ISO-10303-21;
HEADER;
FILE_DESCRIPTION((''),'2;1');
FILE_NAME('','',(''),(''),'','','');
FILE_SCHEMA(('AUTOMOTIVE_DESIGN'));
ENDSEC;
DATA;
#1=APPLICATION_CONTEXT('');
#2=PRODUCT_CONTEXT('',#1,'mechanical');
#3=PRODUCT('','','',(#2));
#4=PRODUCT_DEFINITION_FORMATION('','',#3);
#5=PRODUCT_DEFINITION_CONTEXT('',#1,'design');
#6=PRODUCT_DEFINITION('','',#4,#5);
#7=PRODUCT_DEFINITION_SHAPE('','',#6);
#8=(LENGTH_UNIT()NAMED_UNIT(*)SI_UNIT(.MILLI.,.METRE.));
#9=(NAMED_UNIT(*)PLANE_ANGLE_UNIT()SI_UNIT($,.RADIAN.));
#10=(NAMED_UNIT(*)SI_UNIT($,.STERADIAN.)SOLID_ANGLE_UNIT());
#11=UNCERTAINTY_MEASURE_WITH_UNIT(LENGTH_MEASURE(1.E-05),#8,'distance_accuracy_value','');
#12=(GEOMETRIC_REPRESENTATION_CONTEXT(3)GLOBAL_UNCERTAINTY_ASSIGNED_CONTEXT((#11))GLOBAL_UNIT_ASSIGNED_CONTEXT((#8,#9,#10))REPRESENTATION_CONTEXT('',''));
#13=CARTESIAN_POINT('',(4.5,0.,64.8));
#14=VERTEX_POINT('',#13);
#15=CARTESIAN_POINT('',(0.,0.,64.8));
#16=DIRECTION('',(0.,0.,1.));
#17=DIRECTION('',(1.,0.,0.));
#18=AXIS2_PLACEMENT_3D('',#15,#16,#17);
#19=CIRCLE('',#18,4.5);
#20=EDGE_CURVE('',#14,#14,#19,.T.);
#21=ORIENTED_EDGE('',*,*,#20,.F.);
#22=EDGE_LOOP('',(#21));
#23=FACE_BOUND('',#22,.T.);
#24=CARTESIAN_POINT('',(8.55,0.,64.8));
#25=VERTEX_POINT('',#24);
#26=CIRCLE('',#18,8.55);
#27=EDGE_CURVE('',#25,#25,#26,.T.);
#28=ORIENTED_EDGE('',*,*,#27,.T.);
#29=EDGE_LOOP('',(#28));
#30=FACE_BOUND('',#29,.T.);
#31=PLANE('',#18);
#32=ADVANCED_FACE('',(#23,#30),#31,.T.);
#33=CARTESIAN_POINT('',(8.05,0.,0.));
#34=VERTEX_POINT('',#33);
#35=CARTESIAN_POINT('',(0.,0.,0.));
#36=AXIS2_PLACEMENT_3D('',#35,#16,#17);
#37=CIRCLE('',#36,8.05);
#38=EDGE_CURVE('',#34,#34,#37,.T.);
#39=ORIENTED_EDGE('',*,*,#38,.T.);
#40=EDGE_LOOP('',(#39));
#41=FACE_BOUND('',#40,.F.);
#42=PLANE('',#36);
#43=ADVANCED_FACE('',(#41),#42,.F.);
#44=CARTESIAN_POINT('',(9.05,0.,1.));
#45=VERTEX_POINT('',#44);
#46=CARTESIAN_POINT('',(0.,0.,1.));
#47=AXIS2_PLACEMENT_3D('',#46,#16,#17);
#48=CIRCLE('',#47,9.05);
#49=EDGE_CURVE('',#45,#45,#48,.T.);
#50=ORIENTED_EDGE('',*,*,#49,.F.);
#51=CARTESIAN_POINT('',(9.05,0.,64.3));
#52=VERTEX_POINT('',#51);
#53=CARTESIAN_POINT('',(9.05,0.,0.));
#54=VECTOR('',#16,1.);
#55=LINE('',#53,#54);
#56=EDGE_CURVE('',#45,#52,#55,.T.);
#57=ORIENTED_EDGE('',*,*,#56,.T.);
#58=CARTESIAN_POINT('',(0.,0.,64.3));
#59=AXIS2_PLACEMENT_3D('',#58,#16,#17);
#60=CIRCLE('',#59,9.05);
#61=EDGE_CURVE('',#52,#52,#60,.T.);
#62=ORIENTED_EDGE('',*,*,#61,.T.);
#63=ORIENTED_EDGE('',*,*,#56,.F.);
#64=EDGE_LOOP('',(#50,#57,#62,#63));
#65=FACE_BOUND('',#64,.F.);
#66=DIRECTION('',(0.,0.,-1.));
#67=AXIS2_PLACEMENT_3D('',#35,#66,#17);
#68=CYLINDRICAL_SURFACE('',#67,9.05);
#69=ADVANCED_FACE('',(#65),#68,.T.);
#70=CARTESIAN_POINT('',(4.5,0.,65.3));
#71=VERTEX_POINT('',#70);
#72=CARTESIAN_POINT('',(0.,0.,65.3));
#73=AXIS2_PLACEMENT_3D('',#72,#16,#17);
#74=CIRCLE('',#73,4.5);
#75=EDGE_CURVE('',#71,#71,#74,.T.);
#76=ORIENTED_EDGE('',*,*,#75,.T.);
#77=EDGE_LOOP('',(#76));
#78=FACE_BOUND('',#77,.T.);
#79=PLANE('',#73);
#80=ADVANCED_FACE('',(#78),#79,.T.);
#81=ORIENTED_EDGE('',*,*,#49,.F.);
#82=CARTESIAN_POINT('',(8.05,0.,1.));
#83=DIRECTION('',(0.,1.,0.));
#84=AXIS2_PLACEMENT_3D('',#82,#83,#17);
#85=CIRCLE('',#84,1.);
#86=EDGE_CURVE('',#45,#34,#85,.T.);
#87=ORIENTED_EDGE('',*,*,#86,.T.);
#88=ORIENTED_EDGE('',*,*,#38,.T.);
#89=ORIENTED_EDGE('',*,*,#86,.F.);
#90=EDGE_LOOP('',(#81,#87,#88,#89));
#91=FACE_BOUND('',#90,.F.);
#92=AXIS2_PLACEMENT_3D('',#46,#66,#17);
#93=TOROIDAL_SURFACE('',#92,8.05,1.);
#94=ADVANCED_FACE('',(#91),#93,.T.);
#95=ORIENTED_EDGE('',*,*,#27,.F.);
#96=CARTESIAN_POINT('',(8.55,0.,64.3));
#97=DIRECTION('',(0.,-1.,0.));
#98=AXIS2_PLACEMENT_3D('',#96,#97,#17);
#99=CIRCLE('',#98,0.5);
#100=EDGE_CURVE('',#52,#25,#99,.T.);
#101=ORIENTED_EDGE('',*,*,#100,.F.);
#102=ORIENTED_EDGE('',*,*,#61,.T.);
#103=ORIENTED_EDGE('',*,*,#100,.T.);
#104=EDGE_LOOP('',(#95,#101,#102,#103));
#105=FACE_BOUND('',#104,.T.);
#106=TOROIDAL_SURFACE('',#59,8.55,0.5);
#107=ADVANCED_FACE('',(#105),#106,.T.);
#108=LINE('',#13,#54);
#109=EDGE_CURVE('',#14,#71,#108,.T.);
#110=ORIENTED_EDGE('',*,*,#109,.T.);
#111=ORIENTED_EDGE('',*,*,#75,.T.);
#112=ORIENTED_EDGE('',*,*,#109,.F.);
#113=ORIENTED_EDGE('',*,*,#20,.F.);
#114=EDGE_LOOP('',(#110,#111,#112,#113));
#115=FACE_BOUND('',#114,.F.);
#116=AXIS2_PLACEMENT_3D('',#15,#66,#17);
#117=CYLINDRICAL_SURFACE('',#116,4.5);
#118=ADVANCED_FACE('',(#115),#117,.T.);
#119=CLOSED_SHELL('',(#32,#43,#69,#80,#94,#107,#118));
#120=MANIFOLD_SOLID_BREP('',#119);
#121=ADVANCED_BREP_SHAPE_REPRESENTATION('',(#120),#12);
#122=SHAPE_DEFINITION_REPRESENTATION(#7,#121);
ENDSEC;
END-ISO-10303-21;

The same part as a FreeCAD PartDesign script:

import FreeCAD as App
import Part
import Sketcher


def edges_at(feature, points):
    """Names of the edges that pass closest to the given points."""
    edges = feature.Shape.Edges
    near = lambda p: min(range(len(edges)), key=lambda i: edges[i].distToShape(Part.Vertex(*p))[0])
    return sorted({f"Edge{near(p) + 1}" for p in points})

doc = App.newDocument("Part")
params = doc.addObject("Spreadsheet::Sheet", "Params")
for row, (alias, value) in enumerate([
    ("sketch1_diameter", "18.1 mm"),
    ("pad1_length", "64.8 mm"),
    ("fillet_radius", "1 mm"),
    ("sketch2_diameter", "9 mm"),
    ("pad2_length", "0.5 mm"),
    ("fillet2_radius", "0.5 mm"),
], start=1):
    params.set(f"A{row}", alias)
    params.set(f"B{row}", "=" + value)
    params.setAlias(f"B{row}", alias)

body = doc.addObject("PartDesign::Body", "Body")

# Sketch on XY plane
sketch1 = body.newObject("Sketcher::SketchObject", "Sketch")
sketch1.AttachmentSupport = (doc.getObject("XY_Plane"), [""])
sketch1.MapMode = "FlatFace"
sketch1.addGeometry(Part.Circle(App.Vector(0, 0, 0), App.Vector(0, 0, 1), 9), False)
sketch1.addConstraint(Sketcher.Constraint("Coincident", 0, 3, -1, 1))
sketch1.addConstraint(Sketcher.Constraint("Diameter", 0, 18.1))
sketch1.setExpression("Constraints[1]", "Params.sketch1_diameter")
pad1 = body.newObject("PartDesign::Pad", "Pad")
pad1.Profile = sketch1
pad1.setExpression("Length", "Params.pad1_length")
doc.recompute()

fillet = body.newObject("PartDesign::Fillet", "Fillet")
fillet.Base = (pad1, edges_at(pad1, [(-9.05, 0, 0)]))
fillet.setExpression("Radius", "Params.fillet_radius")

# Sketch on XY plane
sketch2 = body.newObject("Sketcher::SketchObject", "Sketch001")
sketch2.AttachmentSupport = (doc.getObject("XY_Plane"), [""])
sketch2.MapMode = "FlatFace"
sketch2.AttachmentOffset = App.Placement(App.Vector(0, 0, 64.8), App.Rotation())
sketch2.addGeometry(Part.Circle(App.Vector(0, 0, 0), App.Vector(0, 0, 1), 4.5), False)
sketch2.addConstraint(Sketcher.Constraint("Coincident", 0, 3, -1, 1))
sketch2.addConstraint(Sketcher.Constraint("Diameter", 0, 9.0))
sketch2.setExpression("Constraints[1]", "Params.sketch2_diameter")
pad2 = body.newObject("PartDesign::Pad", "Pad001")
pad2.Profile = sketch2
pad2.setExpression("Length", "Params.pad2_length")
doc.recompute()

fillet2 = body.newObject("PartDesign::Fillet", "Fillet001")
fillet2.Base = (pad2, edges_at(pad2, [(-9.05, 0, 64.8)]))
fillet2.setExpression("Radius", "Params.fillet2_radius")

doc.recompute()
